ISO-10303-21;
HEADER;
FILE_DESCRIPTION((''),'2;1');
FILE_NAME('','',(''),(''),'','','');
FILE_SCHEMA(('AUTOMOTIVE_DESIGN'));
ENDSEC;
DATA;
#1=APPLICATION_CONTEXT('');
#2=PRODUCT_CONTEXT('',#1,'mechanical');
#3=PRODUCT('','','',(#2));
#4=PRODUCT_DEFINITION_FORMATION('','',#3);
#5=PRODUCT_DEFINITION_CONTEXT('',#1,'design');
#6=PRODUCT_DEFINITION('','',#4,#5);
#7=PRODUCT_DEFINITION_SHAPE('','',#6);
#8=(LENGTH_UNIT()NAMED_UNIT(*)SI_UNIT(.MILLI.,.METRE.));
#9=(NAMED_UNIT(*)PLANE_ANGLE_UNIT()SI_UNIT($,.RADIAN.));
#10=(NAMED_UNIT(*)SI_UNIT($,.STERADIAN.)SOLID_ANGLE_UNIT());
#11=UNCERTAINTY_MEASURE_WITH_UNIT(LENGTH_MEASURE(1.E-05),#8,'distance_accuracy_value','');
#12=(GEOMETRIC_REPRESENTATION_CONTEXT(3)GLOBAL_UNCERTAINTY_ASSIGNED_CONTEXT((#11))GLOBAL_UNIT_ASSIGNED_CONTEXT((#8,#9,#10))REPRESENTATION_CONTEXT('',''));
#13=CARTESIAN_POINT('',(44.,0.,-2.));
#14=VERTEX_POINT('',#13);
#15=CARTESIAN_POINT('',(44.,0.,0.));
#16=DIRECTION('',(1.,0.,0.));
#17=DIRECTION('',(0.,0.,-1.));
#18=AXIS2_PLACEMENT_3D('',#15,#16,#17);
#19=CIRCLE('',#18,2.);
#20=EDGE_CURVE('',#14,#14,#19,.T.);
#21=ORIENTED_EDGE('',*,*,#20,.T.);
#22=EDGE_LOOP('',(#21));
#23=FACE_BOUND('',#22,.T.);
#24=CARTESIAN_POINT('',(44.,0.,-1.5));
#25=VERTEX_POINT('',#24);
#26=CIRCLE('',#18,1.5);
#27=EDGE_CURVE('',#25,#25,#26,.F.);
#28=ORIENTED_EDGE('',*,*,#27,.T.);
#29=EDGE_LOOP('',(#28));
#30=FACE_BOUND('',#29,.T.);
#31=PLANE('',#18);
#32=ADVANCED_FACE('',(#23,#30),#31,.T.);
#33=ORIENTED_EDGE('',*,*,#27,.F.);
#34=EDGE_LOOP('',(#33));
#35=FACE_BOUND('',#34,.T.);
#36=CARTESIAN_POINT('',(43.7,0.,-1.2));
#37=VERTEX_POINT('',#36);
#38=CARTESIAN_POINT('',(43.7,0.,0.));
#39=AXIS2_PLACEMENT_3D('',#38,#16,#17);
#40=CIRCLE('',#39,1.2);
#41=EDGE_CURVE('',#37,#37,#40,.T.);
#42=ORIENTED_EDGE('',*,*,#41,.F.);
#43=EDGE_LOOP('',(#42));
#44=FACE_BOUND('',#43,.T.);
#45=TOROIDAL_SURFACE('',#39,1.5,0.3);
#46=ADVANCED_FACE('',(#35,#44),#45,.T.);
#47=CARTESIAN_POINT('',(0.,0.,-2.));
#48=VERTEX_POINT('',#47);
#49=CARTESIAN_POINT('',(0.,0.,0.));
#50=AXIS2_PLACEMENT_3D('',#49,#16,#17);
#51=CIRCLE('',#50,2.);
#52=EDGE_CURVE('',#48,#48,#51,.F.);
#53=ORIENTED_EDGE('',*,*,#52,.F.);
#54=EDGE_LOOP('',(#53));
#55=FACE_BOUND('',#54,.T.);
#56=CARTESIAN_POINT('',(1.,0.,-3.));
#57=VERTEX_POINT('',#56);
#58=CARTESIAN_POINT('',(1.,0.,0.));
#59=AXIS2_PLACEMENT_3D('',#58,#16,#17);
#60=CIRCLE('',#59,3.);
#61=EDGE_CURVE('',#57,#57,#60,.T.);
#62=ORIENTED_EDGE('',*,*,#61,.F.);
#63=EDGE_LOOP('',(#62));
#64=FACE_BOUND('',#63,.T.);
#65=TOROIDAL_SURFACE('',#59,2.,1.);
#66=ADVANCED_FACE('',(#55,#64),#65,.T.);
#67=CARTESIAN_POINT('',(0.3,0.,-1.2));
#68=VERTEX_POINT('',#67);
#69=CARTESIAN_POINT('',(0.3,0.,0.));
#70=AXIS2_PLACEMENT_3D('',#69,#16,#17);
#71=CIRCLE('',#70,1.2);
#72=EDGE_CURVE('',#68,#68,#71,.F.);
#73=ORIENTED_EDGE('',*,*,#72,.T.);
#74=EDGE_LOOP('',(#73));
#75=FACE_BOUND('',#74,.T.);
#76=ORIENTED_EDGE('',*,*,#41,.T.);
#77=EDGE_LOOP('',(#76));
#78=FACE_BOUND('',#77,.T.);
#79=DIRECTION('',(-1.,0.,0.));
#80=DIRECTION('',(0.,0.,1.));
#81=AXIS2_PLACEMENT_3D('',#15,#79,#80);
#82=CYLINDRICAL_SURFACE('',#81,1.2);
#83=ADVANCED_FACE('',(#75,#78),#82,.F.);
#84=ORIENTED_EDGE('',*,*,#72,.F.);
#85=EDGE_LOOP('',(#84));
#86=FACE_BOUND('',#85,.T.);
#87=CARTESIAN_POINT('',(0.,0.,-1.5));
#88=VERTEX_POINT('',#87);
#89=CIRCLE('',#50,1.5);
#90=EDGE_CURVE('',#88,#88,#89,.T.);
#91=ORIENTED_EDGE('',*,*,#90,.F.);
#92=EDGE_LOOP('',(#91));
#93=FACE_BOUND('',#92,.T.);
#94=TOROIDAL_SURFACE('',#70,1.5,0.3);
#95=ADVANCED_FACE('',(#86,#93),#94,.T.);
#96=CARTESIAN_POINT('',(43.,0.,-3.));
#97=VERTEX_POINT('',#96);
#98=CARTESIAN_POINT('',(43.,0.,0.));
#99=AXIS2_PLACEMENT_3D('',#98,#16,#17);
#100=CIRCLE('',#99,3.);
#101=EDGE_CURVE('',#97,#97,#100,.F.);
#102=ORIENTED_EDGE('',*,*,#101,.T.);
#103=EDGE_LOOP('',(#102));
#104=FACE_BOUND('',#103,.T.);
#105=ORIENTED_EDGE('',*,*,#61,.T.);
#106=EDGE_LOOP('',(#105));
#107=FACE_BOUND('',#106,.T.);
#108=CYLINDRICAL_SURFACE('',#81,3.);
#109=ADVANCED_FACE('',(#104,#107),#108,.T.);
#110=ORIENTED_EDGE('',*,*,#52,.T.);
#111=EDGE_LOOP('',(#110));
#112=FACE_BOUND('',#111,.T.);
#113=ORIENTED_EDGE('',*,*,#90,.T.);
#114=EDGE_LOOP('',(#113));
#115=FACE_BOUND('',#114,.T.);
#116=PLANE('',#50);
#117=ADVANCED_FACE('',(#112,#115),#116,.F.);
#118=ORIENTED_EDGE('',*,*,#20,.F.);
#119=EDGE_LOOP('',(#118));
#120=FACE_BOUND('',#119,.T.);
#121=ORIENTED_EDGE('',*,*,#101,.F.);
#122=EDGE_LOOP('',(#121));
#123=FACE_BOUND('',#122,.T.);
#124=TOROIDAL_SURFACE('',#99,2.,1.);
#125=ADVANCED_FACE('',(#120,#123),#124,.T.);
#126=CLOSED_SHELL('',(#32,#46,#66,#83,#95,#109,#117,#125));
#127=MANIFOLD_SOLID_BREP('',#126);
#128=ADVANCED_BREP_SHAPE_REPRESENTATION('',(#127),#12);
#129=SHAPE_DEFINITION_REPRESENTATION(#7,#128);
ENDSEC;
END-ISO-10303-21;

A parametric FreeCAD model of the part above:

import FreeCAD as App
import Part
import Sketcher
from FreeCAD import Vector


def edges_at(feature, points):
    """Names of the edges that pass closest to the given points."""
    edges = feature.Shape.Edges
    near = lambda p: min(range(len(edges)), key=lambda i: edges[i].distToShape(Part.Vertex(*p))[0])
    return sorted({f"Edge{near(p) + 1}" for p in points})

doc = App.newDocument("Part")
body = doc.addObject("PartDesign::Body", "Body")

# Sketch on YZ plane
sketch1 = body.newObject("Sketcher::SketchObject", "Sketch")
sketch1.AttachmentSupport = (doc.getObject("YZ_Plane"), [""])
sketch1.MapMode = "FlatFace"
sketch1.addGeometry(Part.Circle(Vector(0, 0, 0), Vector(0, 0, 1), 3), False)
sketch1.addConstraint([
    Sketcher.Constraint("Coincident", 0, 3, -1, 1),
    Sketcher.Constraint("Diameter", 0, 6.0),
])
pad1 = body.newObject("PartDesign::Pad", "Pad")
pad1.Profile = sketch1
pad1.Length = 44

# Sketch on YZ plane
sketch2 = body.newObject("Sketcher::SketchObject", "Sketch001")
sketch2.AttachmentSupport = (doc.getObject("YZ_Plane"), [""])
sketch2.MapMode = "FlatFace"
sketch2.addGeometry(Part.Circle(Vector(0, 0, 0), Vector(0, 0, 1), 1.2), False)
sketch2.addConstraint([
    Sketcher.Constraint("Coincident", 0, 3, -1, 1),
    Sketcher.Constraint("Diameter", 0, 2.4),
])
pocket1 = body.newObject("PartDesign::Pocket", "Pocket")
pocket1.Profile = sketch2
pocket1.Length = 44
pocket1.Reversed = True
doc.recompute()

fillet = body.newObject("PartDesign::Fillet", "Fillet")
fillet.Base = (pocket1, edges_at(pocket1, [(0, 0, 3), (44, 0, 3)]))
fillet.Radius = 1
doc.recompute()

fillet2 = body.newObject("PartDesign::Fillet", "Fillet001")
fillet2.Base = (fillet, edges_at(fillet, [(44, 0, -1.2), (0, 0, -1.2)]))
fillet2.Radius = 0.3

doc.recompute()
